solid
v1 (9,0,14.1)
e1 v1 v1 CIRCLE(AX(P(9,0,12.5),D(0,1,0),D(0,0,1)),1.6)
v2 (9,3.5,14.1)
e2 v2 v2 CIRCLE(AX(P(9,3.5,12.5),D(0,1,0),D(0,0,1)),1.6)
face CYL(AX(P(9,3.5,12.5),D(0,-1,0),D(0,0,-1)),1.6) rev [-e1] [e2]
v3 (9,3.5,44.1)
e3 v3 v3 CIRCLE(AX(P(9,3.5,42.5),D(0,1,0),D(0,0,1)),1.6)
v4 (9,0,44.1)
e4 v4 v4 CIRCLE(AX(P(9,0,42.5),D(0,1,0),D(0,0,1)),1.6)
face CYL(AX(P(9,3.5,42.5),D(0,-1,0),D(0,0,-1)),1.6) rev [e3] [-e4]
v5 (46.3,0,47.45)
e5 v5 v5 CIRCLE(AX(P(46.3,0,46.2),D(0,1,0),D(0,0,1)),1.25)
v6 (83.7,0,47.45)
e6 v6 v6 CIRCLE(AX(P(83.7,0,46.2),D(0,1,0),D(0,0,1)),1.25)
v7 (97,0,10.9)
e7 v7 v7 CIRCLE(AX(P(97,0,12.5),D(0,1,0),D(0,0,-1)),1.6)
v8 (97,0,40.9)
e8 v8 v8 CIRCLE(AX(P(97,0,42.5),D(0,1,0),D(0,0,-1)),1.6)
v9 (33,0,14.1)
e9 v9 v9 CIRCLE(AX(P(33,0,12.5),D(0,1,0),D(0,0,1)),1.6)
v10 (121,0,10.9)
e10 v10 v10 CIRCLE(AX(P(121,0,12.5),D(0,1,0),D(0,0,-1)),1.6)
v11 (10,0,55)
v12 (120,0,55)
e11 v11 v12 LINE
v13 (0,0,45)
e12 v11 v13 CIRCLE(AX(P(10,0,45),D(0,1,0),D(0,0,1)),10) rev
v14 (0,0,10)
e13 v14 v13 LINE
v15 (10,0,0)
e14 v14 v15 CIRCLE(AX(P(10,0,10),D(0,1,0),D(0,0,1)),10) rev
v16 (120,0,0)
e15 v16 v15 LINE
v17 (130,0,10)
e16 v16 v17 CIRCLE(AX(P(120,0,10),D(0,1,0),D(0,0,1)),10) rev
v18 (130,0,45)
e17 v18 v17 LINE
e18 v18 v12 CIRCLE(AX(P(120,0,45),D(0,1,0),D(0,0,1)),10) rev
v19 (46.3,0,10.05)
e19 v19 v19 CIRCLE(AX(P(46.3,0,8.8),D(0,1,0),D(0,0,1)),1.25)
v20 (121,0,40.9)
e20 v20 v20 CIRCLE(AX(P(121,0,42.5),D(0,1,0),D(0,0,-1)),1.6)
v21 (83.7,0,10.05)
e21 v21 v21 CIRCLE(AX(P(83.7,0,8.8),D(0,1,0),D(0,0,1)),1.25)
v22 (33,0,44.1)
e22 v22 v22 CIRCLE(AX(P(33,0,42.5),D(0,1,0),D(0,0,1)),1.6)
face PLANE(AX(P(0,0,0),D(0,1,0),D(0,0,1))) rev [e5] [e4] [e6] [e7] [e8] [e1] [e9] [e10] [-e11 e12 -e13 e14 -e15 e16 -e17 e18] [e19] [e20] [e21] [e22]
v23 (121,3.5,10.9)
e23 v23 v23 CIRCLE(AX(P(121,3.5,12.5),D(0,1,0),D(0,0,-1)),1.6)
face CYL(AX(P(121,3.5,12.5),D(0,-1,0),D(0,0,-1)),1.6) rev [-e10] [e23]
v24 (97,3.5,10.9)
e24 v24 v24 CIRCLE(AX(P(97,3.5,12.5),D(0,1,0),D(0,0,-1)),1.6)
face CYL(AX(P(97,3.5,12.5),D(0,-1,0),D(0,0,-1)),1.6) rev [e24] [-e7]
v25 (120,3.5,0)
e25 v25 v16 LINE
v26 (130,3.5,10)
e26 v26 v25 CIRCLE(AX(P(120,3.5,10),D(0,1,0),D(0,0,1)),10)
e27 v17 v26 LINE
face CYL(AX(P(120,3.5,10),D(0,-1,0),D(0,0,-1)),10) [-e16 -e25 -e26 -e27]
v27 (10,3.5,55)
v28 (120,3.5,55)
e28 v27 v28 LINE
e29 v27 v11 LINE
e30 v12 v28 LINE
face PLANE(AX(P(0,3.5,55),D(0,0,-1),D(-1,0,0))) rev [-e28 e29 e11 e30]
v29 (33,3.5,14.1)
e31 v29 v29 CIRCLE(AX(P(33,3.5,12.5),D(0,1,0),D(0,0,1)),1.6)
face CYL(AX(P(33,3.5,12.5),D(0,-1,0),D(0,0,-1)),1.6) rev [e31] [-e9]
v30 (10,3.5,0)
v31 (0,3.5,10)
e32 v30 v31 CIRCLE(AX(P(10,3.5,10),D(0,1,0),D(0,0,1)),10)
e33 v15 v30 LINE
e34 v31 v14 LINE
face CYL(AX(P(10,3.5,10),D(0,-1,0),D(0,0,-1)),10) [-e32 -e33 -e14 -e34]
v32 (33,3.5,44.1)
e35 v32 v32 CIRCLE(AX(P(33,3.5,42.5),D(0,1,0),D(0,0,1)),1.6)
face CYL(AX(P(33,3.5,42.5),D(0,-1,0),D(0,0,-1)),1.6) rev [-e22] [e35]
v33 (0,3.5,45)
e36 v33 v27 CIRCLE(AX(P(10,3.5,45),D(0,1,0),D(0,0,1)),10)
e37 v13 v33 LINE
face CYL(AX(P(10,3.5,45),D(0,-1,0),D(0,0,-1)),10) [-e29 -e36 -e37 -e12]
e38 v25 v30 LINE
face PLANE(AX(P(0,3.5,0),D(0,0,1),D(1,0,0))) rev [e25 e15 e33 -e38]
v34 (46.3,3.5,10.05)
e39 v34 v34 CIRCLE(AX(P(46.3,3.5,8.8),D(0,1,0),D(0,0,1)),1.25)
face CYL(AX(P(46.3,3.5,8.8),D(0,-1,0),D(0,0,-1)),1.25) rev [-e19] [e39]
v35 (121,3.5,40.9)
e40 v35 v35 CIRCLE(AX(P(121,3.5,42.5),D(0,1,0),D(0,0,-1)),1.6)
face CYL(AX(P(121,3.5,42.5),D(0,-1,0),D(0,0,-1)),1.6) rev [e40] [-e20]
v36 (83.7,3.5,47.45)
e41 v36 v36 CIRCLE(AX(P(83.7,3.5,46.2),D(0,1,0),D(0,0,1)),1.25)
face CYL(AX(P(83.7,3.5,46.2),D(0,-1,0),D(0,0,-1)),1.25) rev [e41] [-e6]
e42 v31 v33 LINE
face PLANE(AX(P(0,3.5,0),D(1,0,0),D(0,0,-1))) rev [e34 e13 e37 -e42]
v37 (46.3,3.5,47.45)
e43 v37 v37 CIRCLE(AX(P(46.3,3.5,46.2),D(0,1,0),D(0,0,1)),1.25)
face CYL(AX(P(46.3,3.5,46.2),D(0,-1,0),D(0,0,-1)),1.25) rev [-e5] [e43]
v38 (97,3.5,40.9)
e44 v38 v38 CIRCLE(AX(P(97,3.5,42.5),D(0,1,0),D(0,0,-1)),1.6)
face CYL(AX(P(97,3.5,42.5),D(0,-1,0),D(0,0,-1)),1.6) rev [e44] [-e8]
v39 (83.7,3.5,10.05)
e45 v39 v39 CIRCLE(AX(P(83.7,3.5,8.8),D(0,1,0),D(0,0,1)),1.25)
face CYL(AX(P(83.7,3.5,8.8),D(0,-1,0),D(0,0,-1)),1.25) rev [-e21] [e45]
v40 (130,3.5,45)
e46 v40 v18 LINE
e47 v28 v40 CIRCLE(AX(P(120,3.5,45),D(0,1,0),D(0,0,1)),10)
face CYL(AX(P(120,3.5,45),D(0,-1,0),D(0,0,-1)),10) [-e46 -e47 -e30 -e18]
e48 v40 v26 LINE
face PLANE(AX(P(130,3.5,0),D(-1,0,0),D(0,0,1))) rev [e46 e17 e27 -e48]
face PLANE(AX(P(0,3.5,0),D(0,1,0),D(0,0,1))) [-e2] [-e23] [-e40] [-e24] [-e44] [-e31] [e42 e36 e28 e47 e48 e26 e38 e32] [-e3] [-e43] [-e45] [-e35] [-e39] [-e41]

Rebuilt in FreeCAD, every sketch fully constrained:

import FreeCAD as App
import Part
import Sketcher
Q = App.Units.Quantity


def edges_at(feature, points):
    """Names of the edges that pass closest to the given points."""
    edges = feature.Shape.Edges
    near = lambda p: min(range(len(edges)), key=lambda i: edges[i].distToShape(Part.Vertex(*p))[0])
    return sorted({f"Edge{near(p) + 1}" for p in points})


def add_polygon(sketch, points):
    """Adds a closed chain of lines whose ends are joined by coincident constraints."""
    first, n = sketch.GeometryCount, len(points)
    for a, b in zip(points, points[1:] + points[:1]):
        sketch.addGeometry(Part.LineSegment(App.Vector(*a, 0), App.Vector(*b, 0)), False)
    for i in range(n):
        sketch.addConstraint(Sketcher.Constraint("Coincident", first + i, 2, first + (i + 1) % n, 1))

doc = App.newDocument("Part")
body = doc.addObject("PartDesign::Body", "Body")

# Sketch on XZ plane
sketch1 = body.newObject("Sketcher::SketchObject", "Sketch")
sketch1.AttachmentSupport = (doc.getObject("XZ_Plane"), [""])
sketch1.MapMode = "FlatFace"
add_polygon(sketch1, [(0, 0), (0, 55), (130, 55), (130, 0)])  # lines 0-3
sketch1.addGeometry(Part.Circle(App.Vector(9, 42.5, 0), App.Vector(0, 0, 1), 1.6), False)  # 4
sketch1.addGeometry(Part.Circle(App.Vector(33, 42.5, 0), App.Vector(0, 0, 1), 1.6), False)  # 5
sketch1.addGeometry(Part.Circle(App.Vector(46.3, 46.2, 0), App.Vector(0, 0, 1), 1.25), False)  # 6
sketch1.addGeometry(Part.Circle(App.Vector(83.7, 46.2, 0), App.Vector(0, 0, 1), 1.25), False)  # 7
sketch1.addGeometry(Part.Circle(App.Vector(97, 42.5, 0), App.Vector(0, 0, 1), 1.6), False)  # 8
sketch1.addGeometry(Part.Circle(App.Vector(121, 42.5, 0), App.Vector(0, 0, 1), 1.6), False)  # 9
sketch1.addGeometry(Part.Circle(App.Vector(9, 12.5, 0), App.Vector(0, 0, 1), 1.6), False)  # 10
sketch1.addGeometry(Part.Circle(App.Vector(33, 12.5, 0), App.Vector(0, 0, 1), 1.6), False)  # 11
sketch1.addGeometry(Part.Circle(App.Vector(46.3, 8.8, 0), App.Vector(0, 0, 1), 1.25), False)  # 12
sketch1.addGeometry(Part.Circle(App.Vector(83.7, 8.8, 0), App.Vector(0, 0, 1), 1.25), False)  # 13
sketch1.addGeometry(Part.Circle(App.Vector(97, 12.5, 0), App.Vector(0, 0, 1), 1.6), False)  # 14
sketch1.addGeometry(Part.Circle(App.Vector(121, 12.5, 0), App.Vector(0, 0, 1), 1.6), False)  # 15
sketch1.addConstraint(Sketcher.Constraint("Vertical", 0))
sketch1.addConstraint(Sketcher.Constraint("Horizontal", 1))
sketch1.addConstraint(Sketcher.Constraint("Vertical", 2))
sketch1.addConstraint(Sketcher.Constraint("Horizontal", 3))
sketch1.addConstraint(Sketcher.Constraint("Coincident", 3, 2, -1, 1))
sketch1.addConstraint(Sketcher.Constraint("Equal", 4, 5))
sketch1.addConstraint(Sketcher.Constraint("Equal", 6, 7))
sketch1.addConstraint(Sketcher.Constraint("Equal", 5, 8))
sketch1.addConstraint(Sketcher.Constraint("Equal", 8, 9))
sketch1.addConstraint(Sketcher.Constraint("Equal", 9, 10))
sketch1.addConstraint(Sketcher.Constraint("Equal", 10, 11))
sketch1.addConstraint(Sketcher.Constraint("Equal", 7, 12))
sketch1.addConstraint(Sketcher.Constraint("Equal", 12, 13))
sketch1.addConstraint(Sketcher.Constraint("Equal", 11, 14))
sketch1.addConstraint(Sketcher.Constraint("Equal", 14, 15))
sketch1.addConstraint(Sketcher.Constraint("Horizontal", 4, 3, 5, 3))
sketch1.addConstraint(Sketcher.Constraint("Horizontal", 6, 3, 7, 3))
sketch1.addConstraint(Sketcher.Constraint("Horizontal", 5, 3, 8, 3))
sketch1.addConstraint(Sketcher.Constraint("Horizontal", 8, 3, 9, 3))
sketch1.addConstraint(Sketcher.Constraint("Horizontal", 10, 3, 11, 3))
sketch1.addConstraint(Sketcher.Constraint("Horizontal", 12, 3, 13, 3))
sketch1.addConstraint(Sketcher.Constraint("Horizontal", 11, 3, 14, 3))
sketch1.addConstraint(Sketcher.Constraint("Horizontal", 14, 3, 15, 3))
sketch1.addConstraint(Sketcher.Constraint("Vertical", 4, 3, 10, 3))
sketch1.addConstraint(Sketcher.Constraint("Vertical", 5, 3, 11, 3))
sketch1.addConstraint(Sketcher.Constraint("Vertical", 6, 3, 12, 3))
sketch1.addConstraint(Sketcher.Constraint("Vertical", 7, 3, 13, 3))
sketch1.addConstraint(Sketcher.Constraint("Vertical", 8, 3, 14, 3))
sketch1.addConstraint(Sketcher.Constraint("Vertical", 9, 3, 15, 3))
sketch1.addConstraint(Sketcher.Constraint("Diameter", 4, Q("3.2 mm")))
sketch1.addConstraint(Sketcher.Constraint("Diameter", 6, Q("2.5 mm")))
sketch1.addConstraint(Sketcher.Constraint("DistanceX", 1, 1, 1, 2, Q("130 mm")))
sketch1.addConstraint(Sketcher.Constraint("DistanceY", 0, 1, 0, 2, Q("55 mm")))
sketch1.addConstraint(Sketcher.Constraint("DistanceX", -1, 1, 4, 3, Q("9 mm")))
sketch1.addConstraint(Sketcher.Constraint("DistanceX", -1, 1, 5, 3, Q("33 mm")))
sketch1.addConstraint(Sketcher.Constraint("DistanceX", -1, 1, 8, 3, Q("97 mm")))
sketch1.addConstraint(Sketcher.Constraint("DistanceX", -1, 1, 9, 3, Q("121 mm")))
sketch1.addConstraint(Sketcher.Constraint("DistanceY", 10, 3, 4, 3, Q("30 mm")))
sketch1.addConstraint(Sketcher.Constraint("DistanceY", -1, 1, 4, 3, Q("42.5 mm")))
sketch1.addConstraint(Sketcher.Constraint("DistanceX", -1, 1, 6, 3, Q("46.3 mm")))
sketch1.addConstraint(Sketcher.Constraint("DistanceY", -1, 1, 6, 3, Q("46.2 mm")))
sketch1.addConstraint(Sketcher.Constraint("DistanceX", -1, 1, 7, 3, Q("83.7 mm")))
sketch1.addConstraint(Sketcher.Constraint("DistanceY", -1, 1, 12, 3, Q("8.8 mm")))
pad1 = body.newObject("PartDesign::Pad", "Pad")
pad1.Profile = sketch1
pad1.Length = 3.5
pad1.Reversed = True
doc.recompute()

fillet = body.newObject("PartDesign::Fillet", "Fillet")
fillet.Base = (pad1, edges_at(pad1, [
    (0, 1.75, 0),
    (130, 1.75, 0),
    (130, 1.75, 55),
    (0, 1.75, 55),
]))
fillet.Radius = 10

doc.recompute()
